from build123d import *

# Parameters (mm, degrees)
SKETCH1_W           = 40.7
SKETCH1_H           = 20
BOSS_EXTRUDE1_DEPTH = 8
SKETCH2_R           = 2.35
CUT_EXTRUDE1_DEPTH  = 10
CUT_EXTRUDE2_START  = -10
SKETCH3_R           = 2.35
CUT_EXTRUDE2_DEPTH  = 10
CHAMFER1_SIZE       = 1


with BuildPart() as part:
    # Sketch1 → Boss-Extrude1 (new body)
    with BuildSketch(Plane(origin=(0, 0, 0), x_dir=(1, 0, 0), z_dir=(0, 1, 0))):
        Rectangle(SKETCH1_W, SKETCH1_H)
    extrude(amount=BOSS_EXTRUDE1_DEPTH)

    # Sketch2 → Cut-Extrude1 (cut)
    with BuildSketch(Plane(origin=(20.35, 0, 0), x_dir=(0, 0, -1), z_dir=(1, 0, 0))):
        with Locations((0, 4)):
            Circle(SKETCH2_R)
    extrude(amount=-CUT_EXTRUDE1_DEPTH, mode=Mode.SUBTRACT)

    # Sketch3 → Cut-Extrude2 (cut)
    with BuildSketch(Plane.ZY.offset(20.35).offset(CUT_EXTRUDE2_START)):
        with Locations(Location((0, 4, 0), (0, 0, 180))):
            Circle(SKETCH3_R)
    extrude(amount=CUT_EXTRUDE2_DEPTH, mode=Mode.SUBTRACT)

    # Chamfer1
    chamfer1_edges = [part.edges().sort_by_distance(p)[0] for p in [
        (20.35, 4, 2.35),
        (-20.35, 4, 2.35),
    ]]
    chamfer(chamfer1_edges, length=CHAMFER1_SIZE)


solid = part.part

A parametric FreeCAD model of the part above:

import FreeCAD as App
import Part
import Sketcher


def edges_at(feature, points):
    """Names of the edges that pass closest to the given points."""
    edges = feature.Shape.Edges
    near = lambda p: min(range(len(edges)), key=lambda i: edges[i].distToShape(Part.Vertex(*p))[0])
    return sorted({f"Edge{near(p) + 1}" for p in points})

doc = App.newDocument("Part")
body = doc.addObject("PartDesign::Body", "Body")

# Sketch on XZ plane
sketch1 = body.newObject("Sketcher::SketchObject", "Sketch")
sketch1.AttachmentSupport = (doc.getObject("XZ_Plane"), [""])
sketch1.MapMode = "FlatFace"
sketch1.addGeometry(Part.LineSegment(App.Vector(-20.35, -10, 0), App.Vector(-20.35, 10, 0)), False)
sketch1.addGeometry(Part.LineSegment(App.Vector(-20.35, 10, 0), App.Vector(20.35, 10, 0)), False)
sketch1.addGeometry(Part.LineSegment(App.Vector(20.35, 10, 0), App.Vector(20.35, -10, 0)), False)
sketch1.addGeometry(Part.LineSegment(App.Vector(20.35, -10, 0), App.Vector(-20.35, -10, 0)), False)
sketch1.addConstraint(Sketcher.Constraint("Coincident", 0, 2, 1, 1))
sketch1.addConstraint(Sketcher.Constraint("Coincident", 1, 2, 2, 1))
sketch1.addConstraint(Sketcher.Constraint("Coincident", 2, 2, 3, 1))
sketch1.addConstraint(Sketcher.Constraint("Coincident", 3, 2, 0, 1))
sketch1.addConstraint(Sketcher.Constraint("Vertical", 0))
sketch1.addConstraint(Sketcher.Constraint("Horizontal", 1))
sketch1.addConstraint(Sketcher.Constraint("Vertical", 2))
sketch1.addConstraint(Sketcher.Constraint("Horizontal", 3))
sketch1.addConstraint(Sketcher.Constraint("Symmetric", 0, 2, 2, 2, -1, 1))
sketch1.addConstraint(Sketcher.Constraint("DistanceY", 0, 1, 0, 2, 20.0))
sketch1.addConstraint(Sketcher.Constraint("DistanceX", 1, 1, 1, 2, 40.7))
pad1 = body.newObject("PartDesign::Pad", "Pad")
pad1.Profile = sketch1
pad1.Length = 8
pad1.Reversed = True

# Sketch on YZ plane
sketch2 = body.newObject("Sketcher::SketchObject", "Sketch001")
sketch2.AttachmentSupport = (doc.getObject("YZ_Plane"), [""])
sketch2.MapMode = "FlatFace"
sketch2.AttachmentOffset = App.Placement(App.Vector(0, 0, 20.35), App.Rotation())
sketch2.addGeometry(Part.Circle(App.Vector(4, 0, 0), App.Vector(0, 0, 1), 2.35), False)
sketch2.addConstraint(Sketcher.Constraint("PointOnObject", 0, 3, -1))
sketch2.addConstraint(Sketcher.Constraint("Diameter", 0, 4.7))
sketch2.addConstraint(Sketcher.Constraint("DistanceX", -1, 1, 0, 3, 4.0))
pocket1 = body.newObject("PartDesign::Pocket", "Pocket")
pocket1.Profile = sketch2
pocket1.Length = 10

# Sketch on YZ plane
sketch3 = body.newObject("Sketcher::SketchObject", "Sketch002")
sketch3.AttachmentSupport = (doc.getObject("YZ_Plane"), [""])
sketch3.MapMode = "FlatFace"
sketch3.AttachmentOffset = App.Placement(App.Vector(0, 0, -10.35), App.Rotation())
sketch3.addGeometry(Part.Circle(App.Vector(4, 0, 0), App.Vector(0, 0, 1), 2.35), False)
sketch3.addConstraint(Sketcher.Constraint("PointOnObject", 0, 3, -1))
sketch3.addConstraint(Sketcher.Constraint("Diameter", 0, 4.7))
sketch3.addConstraint(Sketcher.Constraint("DistanceX", -1, 1, 0, 3, 4.0))
pocket2 = body.newObject("PartDesign::Pocket", "Pocket001")
pocket2.Profile = sketch3
pocket2.Length = 10
doc.recompute()

chamfer = body.newObject("PartDesign::Chamfer", "Chamfer")
chamfer.Base = (pocket2, edges_at(pocket2, [(20.35, 4, 2.35), (-20.35, 4, 2.35)]))
chamfer.Size = 1

doc.recompute()
